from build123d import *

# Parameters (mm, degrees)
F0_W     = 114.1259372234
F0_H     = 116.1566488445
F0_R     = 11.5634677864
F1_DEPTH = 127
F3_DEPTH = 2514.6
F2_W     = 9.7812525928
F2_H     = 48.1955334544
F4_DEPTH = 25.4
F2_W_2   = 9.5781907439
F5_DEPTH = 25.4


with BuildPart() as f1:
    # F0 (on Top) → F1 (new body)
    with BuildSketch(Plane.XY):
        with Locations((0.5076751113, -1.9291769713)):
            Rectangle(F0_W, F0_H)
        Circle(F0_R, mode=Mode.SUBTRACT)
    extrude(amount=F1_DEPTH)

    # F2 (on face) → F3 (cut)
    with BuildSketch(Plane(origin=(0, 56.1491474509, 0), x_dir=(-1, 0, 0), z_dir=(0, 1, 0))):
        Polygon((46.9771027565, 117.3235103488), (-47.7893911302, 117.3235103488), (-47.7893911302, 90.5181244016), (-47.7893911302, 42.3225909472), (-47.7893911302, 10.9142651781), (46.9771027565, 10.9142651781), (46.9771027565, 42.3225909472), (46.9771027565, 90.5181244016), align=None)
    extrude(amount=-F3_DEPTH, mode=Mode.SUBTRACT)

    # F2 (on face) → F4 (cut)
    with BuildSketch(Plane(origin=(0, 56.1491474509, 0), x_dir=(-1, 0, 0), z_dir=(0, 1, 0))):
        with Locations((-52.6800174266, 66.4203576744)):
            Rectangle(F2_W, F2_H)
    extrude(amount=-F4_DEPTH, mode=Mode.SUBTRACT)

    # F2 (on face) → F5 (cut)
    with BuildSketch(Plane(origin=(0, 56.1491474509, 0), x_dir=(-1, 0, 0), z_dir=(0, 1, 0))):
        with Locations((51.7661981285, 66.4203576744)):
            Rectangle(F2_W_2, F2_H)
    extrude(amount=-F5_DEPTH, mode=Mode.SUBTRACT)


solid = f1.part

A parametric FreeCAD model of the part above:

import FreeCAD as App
import Part
import Sketcher
from FreeCAD import Vector
Q = App.Units.Quantity


def add_polygon(sketch, points):
    """Adds a closed chain of lines whose ends are joined by coincident constraints."""
    first, n = sketch.GeometryCount, len(points)
    for a, b in zip(points, points[1:] + points[:1]):
        sketch.addGeometry(Part.LineSegment(App.Vector(*a, 0), App.Vector(*b, 0)), False)
    for i in range(n):
        sketch.addConstraint(Sketcher.Constraint("Coincident", first + i, 2, first + (i + 1) % n, 1))

doc = App.newDocument("Part")
body = doc.addObject("PartDesign::Body", "Body")

# Sketch on XY plane
sketch1 = body.newObject("Sketcher::SketchObject", "Sketch")
sketch1.AttachmentSupport = (doc.getObject("XY_Plane"), [""])
sketch1.MapMode = "FlatFace"
add_polygon(sketch1, [(-57, 56), (-57, -60), (58, -60), (58, 56)])  # lines 0-3
sketch1.addGeometry(Part.Circle(Vector(0, 0, 0), Vector(0, 0, 1), 12), False)  # 4
sketch1.addConstraint([
    Sketcher.Constraint("Vertical", 0),
    Sketcher.Constraint("Horizontal", 1),
    Sketcher.Constraint("Vertical", 2),
    Sketcher.Constraint("Horizontal", 3),
    Sketcher.Constraint("Coincident", 4, 3, -1, 1),
    Sketcher.Constraint("Diameter", 4, Q("23.126936 mm")),
    Sketcher.Constraint("DistanceY", 0, 2, -1, 1, Q("2.3625001 in")),
    Sketcher.Constraint("DistanceY", 0, 2, 0, 1, Q("116.156649 mm")),
    Sketcher.Constraint("DistanceX", 1, 1, 1, 2, Q("114.125937 mm")),
    Sketcher.Constraint("DistanceX", 0, 2, -1, 1, Q("56.555293 mm")),
])
pad1 = body.newObject("PartDesign::Pad", "Pad")
pad1.Profile = sketch1
pad1.Length = Q("5 in")

# Sketch on XZ plane
sketch2 = body.newObject("Sketcher::SketchObject", "Sketch001")
sketch2.AttachmentSupport = (doc.getObject("XZ_Plane"), [""])
sketch2.MapMode = "FlatFace"
sketch2.AttachmentOffset = App.Placement(Vector(0, 0, -56.149147), App.Rotation())
add_polygon(sketch2, [(-47, 117), (48, 117), (48, 11), (-47, 11)])  # lines 0-3
sketch2.addConstraint([
    Sketcher.Constraint("Horizontal", 0),
    Sketcher.Constraint("Vertical", 1),
    Sketcher.Constraint("Horizontal", 2),
    Sketcher.Constraint("Vertical", 3),
    Sketcher.Constraint("DistanceX", 0, 1, 0, 2, Q("94.766494 mm")),
    Sketcher.Constraint("DistanceY", 1, 2, 1, 1, Q("106.409245 mm")),
    Sketcher.Constraint("DistanceX", -1, 1, 0, 2, Q("47.789391 mm")),
    Sketcher.Constraint("DistanceY", -1, 1, 0, 2, Q("117.32351 mm")),
])
pocket1 = body.newObject("PartDesign::Pocket", "Pocket")
pocket1.Profile = sketch2
pocket1.Length = Q("99 in")
pocket1.Reversed = True

# Sketch on XZ plane
sketch3 = body.newObject("Sketcher::SketchObject", "Sketch002")
sketch3.AttachmentSupport = (doc.getObject("XZ_Plane"), [""])
sketch3.MapMode = "FlatFace"
sketch3.AttachmentOffset = App.Placement(Vector(0, 0, -56.149147), App.Rotation())
add_polygon(sketch3, [(58, 91), (58, 42), (48, 42), (48, 91)])  # lines 0-3
sketch3.addConstraint([
    Sketcher.Constraint("Vertical", 0),
    Sketcher.Constraint("Horizontal", 1),
    Sketcher.Constraint("Vertical", 2),
    Sketcher.Constraint("Horizontal", 3),
    Sketcher.Constraint("DistanceX", 1, 2, 1, 1, Q("9.781253 mm")),
    Sketcher.Constraint("DistanceY", 0, 2, 0, 1, Q("48.195533 mm")),
    Sketcher.Constraint("DistanceY", -1, 1, 0, 2, Q("42.322591 mm")),
    Sketcher.Constraint("DistanceX", -1, 1, 1, 2, Q("47.789391 mm")),
])
pocket2 = body.newObject("PartDesign::Pocket", "Pocket001")
pocket2.Profile = sketch3
pocket2.Length = Q("1 in")
pocket2.Reversed = True

# Sketch on XZ plane
sketch4 = body.newObject("Sketcher::SketchObject", "Sketch003")
sketch4.AttachmentSupport = (doc.getObject("XZ_Plane"), [""])
sketch4.MapMode = "FlatFace"
sketch4.AttachmentOffset = App.Placement(Vector(0, 0, -56.149147), App.Rotation())
add_polygon(sketch4, [(-47, 91), (-47, 42), (-57, 42), (-57, 91)])  # lines 0-3
sketch4.addConstraint([
    Sketcher.Constraint("Vertical", 0),
    Sketcher.Constraint("Horizontal", 1),
    Sketcher.Constraint("Vertical", 2),
    Sketcher.Constraint("Horizontal", 3),
    Sketcher.Constraint("DistanceX", 1, 2, 1, 1, Q("9.578191 mm")),
    Sketcher.Constraint("DistanceY", 0, 2, 0, 1, Q("48.195533 mm")),
    Sketcher.Constraint("DistanceY", -1, 1, 0, 2, Q("42.322591 mm")),
    Sketcher.Constraint("DistanceX", 0, 2, -1, 1, Q("46.977103 mm")),
])
pocket3 = body.newObject("PartDesign::Pocket", "Pocket002")
pocket3.Profile = sketch4
pocket3.Length = Q("1 in")
pocket3.Reversed = True

doc.recompute()
